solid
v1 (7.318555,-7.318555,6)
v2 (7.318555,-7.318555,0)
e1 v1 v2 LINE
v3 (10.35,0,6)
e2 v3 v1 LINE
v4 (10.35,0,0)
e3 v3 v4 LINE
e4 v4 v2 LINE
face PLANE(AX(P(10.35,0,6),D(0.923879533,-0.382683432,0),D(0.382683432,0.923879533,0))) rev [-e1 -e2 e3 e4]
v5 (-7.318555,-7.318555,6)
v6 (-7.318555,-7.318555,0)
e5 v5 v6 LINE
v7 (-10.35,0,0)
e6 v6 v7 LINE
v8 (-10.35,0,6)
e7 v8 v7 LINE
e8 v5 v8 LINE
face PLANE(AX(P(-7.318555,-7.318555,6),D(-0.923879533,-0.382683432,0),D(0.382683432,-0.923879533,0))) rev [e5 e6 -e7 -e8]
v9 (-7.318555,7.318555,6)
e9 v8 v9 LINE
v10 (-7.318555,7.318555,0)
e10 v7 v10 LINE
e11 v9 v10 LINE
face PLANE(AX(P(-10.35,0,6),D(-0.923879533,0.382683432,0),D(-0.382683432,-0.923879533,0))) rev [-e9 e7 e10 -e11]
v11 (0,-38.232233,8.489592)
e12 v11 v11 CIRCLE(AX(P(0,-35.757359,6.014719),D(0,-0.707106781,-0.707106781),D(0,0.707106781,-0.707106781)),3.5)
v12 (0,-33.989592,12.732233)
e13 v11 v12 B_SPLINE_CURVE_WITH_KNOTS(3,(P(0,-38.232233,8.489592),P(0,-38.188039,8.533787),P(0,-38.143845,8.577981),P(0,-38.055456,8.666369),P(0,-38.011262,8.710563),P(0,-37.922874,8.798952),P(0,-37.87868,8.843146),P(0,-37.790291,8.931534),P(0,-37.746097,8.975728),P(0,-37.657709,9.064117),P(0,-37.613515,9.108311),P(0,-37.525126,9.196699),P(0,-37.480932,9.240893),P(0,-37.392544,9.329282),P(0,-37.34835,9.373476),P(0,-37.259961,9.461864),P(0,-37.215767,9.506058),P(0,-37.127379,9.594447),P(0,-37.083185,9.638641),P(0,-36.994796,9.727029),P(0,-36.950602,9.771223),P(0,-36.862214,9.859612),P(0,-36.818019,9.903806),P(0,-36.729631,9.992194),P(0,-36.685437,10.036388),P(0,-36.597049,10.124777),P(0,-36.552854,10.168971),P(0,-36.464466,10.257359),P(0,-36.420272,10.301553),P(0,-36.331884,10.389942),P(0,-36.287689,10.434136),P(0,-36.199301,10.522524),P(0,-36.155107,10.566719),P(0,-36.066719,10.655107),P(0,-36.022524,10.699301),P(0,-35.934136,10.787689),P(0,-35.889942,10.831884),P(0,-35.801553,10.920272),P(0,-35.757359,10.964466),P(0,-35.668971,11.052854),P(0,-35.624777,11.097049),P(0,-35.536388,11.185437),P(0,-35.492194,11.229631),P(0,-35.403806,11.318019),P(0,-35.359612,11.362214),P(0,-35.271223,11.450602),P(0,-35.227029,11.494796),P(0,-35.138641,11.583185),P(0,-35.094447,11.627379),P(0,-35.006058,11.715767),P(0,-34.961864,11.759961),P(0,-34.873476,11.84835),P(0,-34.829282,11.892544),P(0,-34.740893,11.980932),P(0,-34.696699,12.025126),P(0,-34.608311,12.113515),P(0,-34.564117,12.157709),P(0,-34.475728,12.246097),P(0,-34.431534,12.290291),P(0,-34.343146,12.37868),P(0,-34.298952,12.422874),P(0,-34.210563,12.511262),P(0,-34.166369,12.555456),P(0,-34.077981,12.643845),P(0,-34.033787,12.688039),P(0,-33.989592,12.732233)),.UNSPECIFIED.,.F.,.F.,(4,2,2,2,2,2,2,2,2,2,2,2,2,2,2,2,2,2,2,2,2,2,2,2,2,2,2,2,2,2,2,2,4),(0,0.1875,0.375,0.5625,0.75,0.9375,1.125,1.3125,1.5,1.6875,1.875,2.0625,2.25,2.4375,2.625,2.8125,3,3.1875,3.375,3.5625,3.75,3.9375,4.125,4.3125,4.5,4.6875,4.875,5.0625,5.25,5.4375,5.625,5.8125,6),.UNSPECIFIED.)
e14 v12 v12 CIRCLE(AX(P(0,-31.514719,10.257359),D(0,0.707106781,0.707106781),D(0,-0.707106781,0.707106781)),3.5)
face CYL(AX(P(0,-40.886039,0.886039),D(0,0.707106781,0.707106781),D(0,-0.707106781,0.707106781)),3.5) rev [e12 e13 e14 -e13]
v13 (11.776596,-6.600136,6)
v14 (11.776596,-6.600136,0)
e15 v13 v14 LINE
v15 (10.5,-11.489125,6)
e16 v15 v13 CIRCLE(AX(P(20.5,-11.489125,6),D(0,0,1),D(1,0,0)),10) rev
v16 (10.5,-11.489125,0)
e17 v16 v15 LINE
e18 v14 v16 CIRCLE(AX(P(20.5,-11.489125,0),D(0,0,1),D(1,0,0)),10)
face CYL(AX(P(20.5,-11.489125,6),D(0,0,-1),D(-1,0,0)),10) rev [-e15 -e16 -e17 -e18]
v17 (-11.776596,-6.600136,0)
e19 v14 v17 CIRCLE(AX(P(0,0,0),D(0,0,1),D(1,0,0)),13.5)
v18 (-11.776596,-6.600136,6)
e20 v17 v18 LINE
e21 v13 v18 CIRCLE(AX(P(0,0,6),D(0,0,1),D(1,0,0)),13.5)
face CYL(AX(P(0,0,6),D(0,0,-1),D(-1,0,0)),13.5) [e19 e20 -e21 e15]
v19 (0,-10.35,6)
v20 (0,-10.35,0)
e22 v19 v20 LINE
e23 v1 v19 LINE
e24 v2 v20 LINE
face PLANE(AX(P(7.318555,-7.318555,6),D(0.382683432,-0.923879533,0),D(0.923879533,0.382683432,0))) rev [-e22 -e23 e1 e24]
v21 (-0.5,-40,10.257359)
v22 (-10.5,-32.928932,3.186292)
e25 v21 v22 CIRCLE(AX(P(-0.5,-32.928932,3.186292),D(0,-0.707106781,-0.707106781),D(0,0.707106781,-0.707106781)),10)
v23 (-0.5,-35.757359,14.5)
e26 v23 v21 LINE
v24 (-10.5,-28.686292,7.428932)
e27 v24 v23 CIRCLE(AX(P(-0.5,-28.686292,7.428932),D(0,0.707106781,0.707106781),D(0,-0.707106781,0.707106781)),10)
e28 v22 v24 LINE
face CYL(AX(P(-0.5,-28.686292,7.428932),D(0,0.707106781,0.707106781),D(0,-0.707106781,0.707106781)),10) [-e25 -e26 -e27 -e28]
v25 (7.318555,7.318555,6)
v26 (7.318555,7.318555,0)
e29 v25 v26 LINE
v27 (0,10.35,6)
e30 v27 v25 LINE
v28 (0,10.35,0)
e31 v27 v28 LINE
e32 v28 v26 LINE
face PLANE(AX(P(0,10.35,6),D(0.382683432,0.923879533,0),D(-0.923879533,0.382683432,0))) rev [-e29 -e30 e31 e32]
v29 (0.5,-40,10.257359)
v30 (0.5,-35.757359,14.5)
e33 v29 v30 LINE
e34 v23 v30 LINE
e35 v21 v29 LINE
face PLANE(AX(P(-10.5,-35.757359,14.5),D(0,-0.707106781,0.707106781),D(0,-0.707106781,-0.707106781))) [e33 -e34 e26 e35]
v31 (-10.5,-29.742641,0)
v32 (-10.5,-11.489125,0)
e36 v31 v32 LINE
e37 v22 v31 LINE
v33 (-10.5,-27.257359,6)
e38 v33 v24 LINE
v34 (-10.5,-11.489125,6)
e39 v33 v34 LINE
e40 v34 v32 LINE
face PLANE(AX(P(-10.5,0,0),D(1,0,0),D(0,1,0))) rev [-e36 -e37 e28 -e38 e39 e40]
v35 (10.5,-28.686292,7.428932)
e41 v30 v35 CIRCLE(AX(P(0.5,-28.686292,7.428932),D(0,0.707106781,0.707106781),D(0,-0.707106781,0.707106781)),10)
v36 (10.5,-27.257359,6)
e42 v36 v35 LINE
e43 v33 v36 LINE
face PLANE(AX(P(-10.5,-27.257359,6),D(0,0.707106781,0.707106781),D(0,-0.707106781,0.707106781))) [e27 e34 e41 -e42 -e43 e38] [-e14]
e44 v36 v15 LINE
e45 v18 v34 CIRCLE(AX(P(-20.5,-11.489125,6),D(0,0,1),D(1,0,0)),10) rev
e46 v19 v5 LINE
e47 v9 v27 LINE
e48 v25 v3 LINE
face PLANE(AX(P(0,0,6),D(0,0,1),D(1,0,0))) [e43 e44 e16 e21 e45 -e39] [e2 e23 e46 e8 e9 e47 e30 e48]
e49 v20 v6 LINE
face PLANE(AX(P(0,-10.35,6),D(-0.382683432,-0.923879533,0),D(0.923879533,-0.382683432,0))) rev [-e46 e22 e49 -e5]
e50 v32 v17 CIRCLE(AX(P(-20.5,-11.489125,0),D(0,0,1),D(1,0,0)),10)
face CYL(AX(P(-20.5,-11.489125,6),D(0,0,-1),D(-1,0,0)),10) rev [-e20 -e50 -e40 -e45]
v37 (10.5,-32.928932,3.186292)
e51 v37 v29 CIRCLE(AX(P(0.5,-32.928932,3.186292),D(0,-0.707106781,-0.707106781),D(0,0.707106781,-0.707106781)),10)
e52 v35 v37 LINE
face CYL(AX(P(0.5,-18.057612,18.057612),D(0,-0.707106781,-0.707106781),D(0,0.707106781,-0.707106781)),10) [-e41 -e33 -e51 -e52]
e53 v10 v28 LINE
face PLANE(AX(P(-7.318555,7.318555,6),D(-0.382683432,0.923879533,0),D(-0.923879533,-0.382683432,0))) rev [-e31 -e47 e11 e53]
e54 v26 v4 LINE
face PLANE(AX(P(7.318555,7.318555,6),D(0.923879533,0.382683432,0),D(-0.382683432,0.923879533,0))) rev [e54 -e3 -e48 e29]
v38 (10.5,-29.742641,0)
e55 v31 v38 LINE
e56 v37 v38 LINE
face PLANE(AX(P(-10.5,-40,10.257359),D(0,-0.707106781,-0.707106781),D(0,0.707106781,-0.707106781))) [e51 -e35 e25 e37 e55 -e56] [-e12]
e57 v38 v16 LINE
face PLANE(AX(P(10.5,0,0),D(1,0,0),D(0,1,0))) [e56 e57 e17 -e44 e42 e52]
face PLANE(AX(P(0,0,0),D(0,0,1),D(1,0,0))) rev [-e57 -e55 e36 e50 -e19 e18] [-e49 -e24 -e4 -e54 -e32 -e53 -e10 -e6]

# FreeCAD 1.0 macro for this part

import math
import FreeCAD as App
import Part
import Sketcher
Q = App.Units.Quantity


def edges_at(feature, points):
    """Names of the edges that pass closest to the given points."""
    edges = feature.Shape.Edges
    near = lambda p: min(range(len(edges)), key=lambda i: edges[i].distToShape(Part.Vertex(*p))[0])
    return sorted({f"Edge{near(p) + 1}" for p in points})


def add_polygon(sketch, points):
    """Adds a closed chain of lines whose ends are joined by coincident constraints."""
    first, n = sketch.GeometryCount, len(points)
    for a, b in zip(points, points[1:] + points[:1]):
        sketch.addGeometry(Part.LineSegment(App.Vector(*a, 0), App.Vector(*b, 0)), False)
    for i in range(n):
        sketch.addConstraint(Sketcher.Constraint("Coincident", first + i, 2, first + (i + 1) % n, 1))

doc = App.newDocument("Part")
body = doc.addObject("PartDesign::Body", "Body")

# Sketch on XY plane
sketch1 = body.newObject("Sketcher::SketchObject", "Sketch")
sketch1.AttachmentSupport = (doc.getObject("XY_Plane"), [""])
sketch1.MapMode = "FlatFace"
sketch1.addGeometry(Part.Circle(App.Vector(0, 0, 0), App.Vector(0, 0, 1), 14), False)  # 0
add_polygon(sketch1, [(7, 7), (10, 0), (7, -7), (0, -10), (-7, -7), (-10, 0), (-7, 7), (0, 10)])  # lines 1-8
sketch1.addConstraint([
    Sketcher.Constraint("Coincident", 0, 3, -1, 1),
    Sketcher.Constraint("Symmetric", 1, 2, 5, 2, -1, 1),
    Sketcher.Constraint("Symmetric", 2, 2, 6, 2, -1, 1),
    Sketcher.Constraint("Symmetric", 3, 2, 7, 2, -1, 1),
    Sketcher.Constraint("Symmetric", 4, 2, 8, 2, -1, 1),
    Sketcher.Constraint("Symmetric", 2, 2, 4, 2, -2),
    Sketcher.Constraint("PointOnObject", 1, 2, -1),
    Sketcher.Constraint("PointOnObject", 3, 2, -2),
    Sketcher.Constraint("Perpendicular", 1, 3),
    Sketcher.Constraint("Equal", 2, 3),
    Sketcher.Constraint("Diameter", 0, Q("27 mm")),
    Sketcher.Constraint("Angle", 1, Q("-67.5 deg")),
    Sketcher.Constraint("DistanceX", 5, 2, 1, 2, Q("20.7 mm")),
])
pad1 = body.newObject("PartDesign::Pad", "Pad")
pad1.Profile = sketch1
pad1.Length = 6

# Sketch on XY plane
sketch2 = body.newObject("Sketcher::SketchObject", "Sketch001")
sketch2.AttachmentSupport = (doc.getObject("XY_Plane"), [""])
sketch2.MapMode = "FlatFace"
sketch2.addGeometry([
    Part.LineSegment(App.Vector(-10, -8, 0), App.Vector(-10, -30, 0)),
    Part.LineSegment(App.Vector(-10, -30, 0), App.Vector(10, -30, 0)),
    Part.LineSegment(App.Vector(10, -30, 0), App.Vector(10, -8, 0)),
    Part.ArcOfCircle(Part.Circle(App.Vector(0, 0, 0), App.Vector(0, 0, 1), 14), math.radians(-141), math.radians(-39)),
], False)
sketch2.addConstraint([
    Sketcher.Constraint("Coincident", 0, 2, 1, 1),
    Sketcher.Constraint("Coincident", 1, 2, 2, 1),
    Sketcher.Constraint("Coincident", 2, 2, 3, 2),
    Sketcher.Constraint("Coincident", 3, 1, 0, 1),
    Sketcher.Constraint("Vertical", 0),
    Sketcher.Constraint("Horizontal", 1),
    Sketcher.Constraint("Vertical", 2),
    Sketcher.Constraint("Coincident", 3, 3, -1, 1),
    Sketcher.Constraint("Horizontal", 2, 2, 3, 1),
    Sketcher.Constraint("Radius", 3, Q("13.5 mm")),
    Sketcher.Constraint("DistanceX", 1, 1, 1, 2, Q("21 mm")),
    Sketcher.Constraint("DistanceY", 0, 2, -1, 1, Q("30 mm")),
])
pad2 = body.newObject("PartDesign::Pad", "Pad001")
pad2.Profile = sketch2
pad2.Length = 6

# Sketch on YZ plane
sketch3 = body.newObject("Sketcher::SketchObject", "Sketch002")
sketch3.AttachmentSupport = (doc.getObject("YZ_Plane"), [""])
sketch3.MapMode = "FlatFace"
sketch3.AttachmentOffset = App.Placement(App.Vector(0, 0, 10.5), App.Rotation())
add_polygon(sketch3, [(-27, 6), (-36, 14), (-40, 10), (-30, 0)])  # lines 0-3
sketch3.addConstraint([
    Sketcher.Constraint("PointOnObject", 2, 2, -1),
    Sketcher.Constraint("Perpendicular", 0, 1),
    Sketcher.Constraint("Perpendicular", 1, 2),
    Sketcher.Constraint("Angle", 0, Q("135 deg")),
    Sketcher.Constraint("Distance", 1, Q("6 mm")),
    Sketcher.Constraint("DistanceX", 1, 2, -1, 1, Q("40 mm")),
    Sketcher.Constraint("DistanceY", -1, 1, 3, 2, Q("6 mm")),
    Sketcher.Constraint("DistanceY", -1, 1, 0, 2, Q("14.5 mm")),
])
pad3 = body.newObject("PartDesign::Pad", "Pad002")
pad3.Profile = sketch3
pad3.Length = 21
pad3.Reversed = True

# Sketch on an angled plane
sketch4 = body.newObject("Sketcher::SketchObject", "Sketch003")
sketch4.Placement = App.Placement(App.Vector(0, -10.62868, -10.62868), App.Rotation(App.Vector(1, 0, 0), App.Vector(0, 0.707106781, -0.707106781), App.Vector(0, 0.707106781, 0.707106781), "ZXY"))
sketch4.addGeometry(Part.Circle(App.Vector(0, -29.5, 0), App.Vector(0, 0, 1), 3.5), False)
sketch4.addConstraint([
    Sketcher.Constraint("PointOnObject", 0, 3, -2),
    Sketcher.Constraint("Diameter", 0, Q("7 mm")),
    Sketcher.Constraint("DistanceY", 0, 3, -1, 1, Q("29.53732 mm")),
])
pocket1 = body.newObject("PartDesign::Pocket", "Pocket")
pocket1.Profile = sketch4
pocket1.Type = "ThroughAll"

# Sketch on YZ plane
sketch5 = body.newObject("Sketcher::SketchObject", "Sketch004")
sketch5.AttachmentSupport = (doc.getObject("YZ_Plane"), [""])
sketch5.MapMode = "FlatFace"
sketch5.AttachmentOffset = App.Placement(App.Vector(0, 0, 10.5), App.Rotation())
add_polygon(sketch5, [(-29.74, 0), (-30, 0.26), (-30, 0)])  # lines 0-2
sketch5.addConstraint([
    Sketcher.Constraint("Vertical", 1),
    Sketcher.Constraint("Horizontal", 2),
    Sketcher.Constraint("PointOnObject", 1, 2, -1),
    Sketcher.Constraint("Equal", 2, 1),
    Sketcher.Constraint("DistanceX", 0, 2, -1, 1, Q("30 mm")),
    Sketcher.Constraint("DistanceX", 2, 1, 2, 2, Q("0.257359 mm")),
])
pocket2 = body.newObject("PartDesign::Pocket", "Pocket001")
pocket2.Profile = sketch5
pocket2.Type = "ThroughAll"
pocket2.Midplane = True
doc.recompute()

fillet = body.newObject("PartDesign::Fillet", "Fillet")
fillet.Base = (pocket2, edges_at(pocket2, [
    (-10.5, -8.485, 3),
    (10.5, -8.485, 3),
    (-10.5, -37.879, 12.379),
    (10.5, -37.879, 12.379),
]))
fillet.Radius = 10

doc.recompute()
